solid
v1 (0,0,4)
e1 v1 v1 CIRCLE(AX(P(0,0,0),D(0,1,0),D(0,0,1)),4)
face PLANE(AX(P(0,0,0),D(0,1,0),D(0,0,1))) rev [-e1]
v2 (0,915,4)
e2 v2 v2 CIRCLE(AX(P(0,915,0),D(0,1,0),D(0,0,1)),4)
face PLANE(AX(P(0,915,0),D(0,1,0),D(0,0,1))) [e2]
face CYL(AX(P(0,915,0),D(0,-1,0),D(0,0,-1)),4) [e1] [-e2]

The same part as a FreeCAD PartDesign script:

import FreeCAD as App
import Part
import Sketcher
Q = App.Units.Quantity

doc = App.newDocument("Part")
body = doc.addObject("PartDesign::Body", "Body")

# Sketch on XZ plane
sketch1 = body.newObject("Sketcher::SketchObject", "Sketch")
sketch1.AttachmentSupport = (doc.getObject("XZ_Plane"), [""])
sketch1.MapMode = "FlatFace"
sketch1.addGeometry(Part.Circle(App.Vector(0, 0, 0), App.Vector(0, 0, 1), 4), False)
sketch1.addConstraint([
    Sketcher.Constraint("Coincident", 0, 3, -1, 1),
    Sketcher.Constraint("Diameter", 0, Q("8 mm")),
])
pad1 = body.newObject("PartDesign::Pad", "Pad")
pad1.Profile = sketch1
pad1.Length = 915
pad1.Reversed = True

doc.recompute()
